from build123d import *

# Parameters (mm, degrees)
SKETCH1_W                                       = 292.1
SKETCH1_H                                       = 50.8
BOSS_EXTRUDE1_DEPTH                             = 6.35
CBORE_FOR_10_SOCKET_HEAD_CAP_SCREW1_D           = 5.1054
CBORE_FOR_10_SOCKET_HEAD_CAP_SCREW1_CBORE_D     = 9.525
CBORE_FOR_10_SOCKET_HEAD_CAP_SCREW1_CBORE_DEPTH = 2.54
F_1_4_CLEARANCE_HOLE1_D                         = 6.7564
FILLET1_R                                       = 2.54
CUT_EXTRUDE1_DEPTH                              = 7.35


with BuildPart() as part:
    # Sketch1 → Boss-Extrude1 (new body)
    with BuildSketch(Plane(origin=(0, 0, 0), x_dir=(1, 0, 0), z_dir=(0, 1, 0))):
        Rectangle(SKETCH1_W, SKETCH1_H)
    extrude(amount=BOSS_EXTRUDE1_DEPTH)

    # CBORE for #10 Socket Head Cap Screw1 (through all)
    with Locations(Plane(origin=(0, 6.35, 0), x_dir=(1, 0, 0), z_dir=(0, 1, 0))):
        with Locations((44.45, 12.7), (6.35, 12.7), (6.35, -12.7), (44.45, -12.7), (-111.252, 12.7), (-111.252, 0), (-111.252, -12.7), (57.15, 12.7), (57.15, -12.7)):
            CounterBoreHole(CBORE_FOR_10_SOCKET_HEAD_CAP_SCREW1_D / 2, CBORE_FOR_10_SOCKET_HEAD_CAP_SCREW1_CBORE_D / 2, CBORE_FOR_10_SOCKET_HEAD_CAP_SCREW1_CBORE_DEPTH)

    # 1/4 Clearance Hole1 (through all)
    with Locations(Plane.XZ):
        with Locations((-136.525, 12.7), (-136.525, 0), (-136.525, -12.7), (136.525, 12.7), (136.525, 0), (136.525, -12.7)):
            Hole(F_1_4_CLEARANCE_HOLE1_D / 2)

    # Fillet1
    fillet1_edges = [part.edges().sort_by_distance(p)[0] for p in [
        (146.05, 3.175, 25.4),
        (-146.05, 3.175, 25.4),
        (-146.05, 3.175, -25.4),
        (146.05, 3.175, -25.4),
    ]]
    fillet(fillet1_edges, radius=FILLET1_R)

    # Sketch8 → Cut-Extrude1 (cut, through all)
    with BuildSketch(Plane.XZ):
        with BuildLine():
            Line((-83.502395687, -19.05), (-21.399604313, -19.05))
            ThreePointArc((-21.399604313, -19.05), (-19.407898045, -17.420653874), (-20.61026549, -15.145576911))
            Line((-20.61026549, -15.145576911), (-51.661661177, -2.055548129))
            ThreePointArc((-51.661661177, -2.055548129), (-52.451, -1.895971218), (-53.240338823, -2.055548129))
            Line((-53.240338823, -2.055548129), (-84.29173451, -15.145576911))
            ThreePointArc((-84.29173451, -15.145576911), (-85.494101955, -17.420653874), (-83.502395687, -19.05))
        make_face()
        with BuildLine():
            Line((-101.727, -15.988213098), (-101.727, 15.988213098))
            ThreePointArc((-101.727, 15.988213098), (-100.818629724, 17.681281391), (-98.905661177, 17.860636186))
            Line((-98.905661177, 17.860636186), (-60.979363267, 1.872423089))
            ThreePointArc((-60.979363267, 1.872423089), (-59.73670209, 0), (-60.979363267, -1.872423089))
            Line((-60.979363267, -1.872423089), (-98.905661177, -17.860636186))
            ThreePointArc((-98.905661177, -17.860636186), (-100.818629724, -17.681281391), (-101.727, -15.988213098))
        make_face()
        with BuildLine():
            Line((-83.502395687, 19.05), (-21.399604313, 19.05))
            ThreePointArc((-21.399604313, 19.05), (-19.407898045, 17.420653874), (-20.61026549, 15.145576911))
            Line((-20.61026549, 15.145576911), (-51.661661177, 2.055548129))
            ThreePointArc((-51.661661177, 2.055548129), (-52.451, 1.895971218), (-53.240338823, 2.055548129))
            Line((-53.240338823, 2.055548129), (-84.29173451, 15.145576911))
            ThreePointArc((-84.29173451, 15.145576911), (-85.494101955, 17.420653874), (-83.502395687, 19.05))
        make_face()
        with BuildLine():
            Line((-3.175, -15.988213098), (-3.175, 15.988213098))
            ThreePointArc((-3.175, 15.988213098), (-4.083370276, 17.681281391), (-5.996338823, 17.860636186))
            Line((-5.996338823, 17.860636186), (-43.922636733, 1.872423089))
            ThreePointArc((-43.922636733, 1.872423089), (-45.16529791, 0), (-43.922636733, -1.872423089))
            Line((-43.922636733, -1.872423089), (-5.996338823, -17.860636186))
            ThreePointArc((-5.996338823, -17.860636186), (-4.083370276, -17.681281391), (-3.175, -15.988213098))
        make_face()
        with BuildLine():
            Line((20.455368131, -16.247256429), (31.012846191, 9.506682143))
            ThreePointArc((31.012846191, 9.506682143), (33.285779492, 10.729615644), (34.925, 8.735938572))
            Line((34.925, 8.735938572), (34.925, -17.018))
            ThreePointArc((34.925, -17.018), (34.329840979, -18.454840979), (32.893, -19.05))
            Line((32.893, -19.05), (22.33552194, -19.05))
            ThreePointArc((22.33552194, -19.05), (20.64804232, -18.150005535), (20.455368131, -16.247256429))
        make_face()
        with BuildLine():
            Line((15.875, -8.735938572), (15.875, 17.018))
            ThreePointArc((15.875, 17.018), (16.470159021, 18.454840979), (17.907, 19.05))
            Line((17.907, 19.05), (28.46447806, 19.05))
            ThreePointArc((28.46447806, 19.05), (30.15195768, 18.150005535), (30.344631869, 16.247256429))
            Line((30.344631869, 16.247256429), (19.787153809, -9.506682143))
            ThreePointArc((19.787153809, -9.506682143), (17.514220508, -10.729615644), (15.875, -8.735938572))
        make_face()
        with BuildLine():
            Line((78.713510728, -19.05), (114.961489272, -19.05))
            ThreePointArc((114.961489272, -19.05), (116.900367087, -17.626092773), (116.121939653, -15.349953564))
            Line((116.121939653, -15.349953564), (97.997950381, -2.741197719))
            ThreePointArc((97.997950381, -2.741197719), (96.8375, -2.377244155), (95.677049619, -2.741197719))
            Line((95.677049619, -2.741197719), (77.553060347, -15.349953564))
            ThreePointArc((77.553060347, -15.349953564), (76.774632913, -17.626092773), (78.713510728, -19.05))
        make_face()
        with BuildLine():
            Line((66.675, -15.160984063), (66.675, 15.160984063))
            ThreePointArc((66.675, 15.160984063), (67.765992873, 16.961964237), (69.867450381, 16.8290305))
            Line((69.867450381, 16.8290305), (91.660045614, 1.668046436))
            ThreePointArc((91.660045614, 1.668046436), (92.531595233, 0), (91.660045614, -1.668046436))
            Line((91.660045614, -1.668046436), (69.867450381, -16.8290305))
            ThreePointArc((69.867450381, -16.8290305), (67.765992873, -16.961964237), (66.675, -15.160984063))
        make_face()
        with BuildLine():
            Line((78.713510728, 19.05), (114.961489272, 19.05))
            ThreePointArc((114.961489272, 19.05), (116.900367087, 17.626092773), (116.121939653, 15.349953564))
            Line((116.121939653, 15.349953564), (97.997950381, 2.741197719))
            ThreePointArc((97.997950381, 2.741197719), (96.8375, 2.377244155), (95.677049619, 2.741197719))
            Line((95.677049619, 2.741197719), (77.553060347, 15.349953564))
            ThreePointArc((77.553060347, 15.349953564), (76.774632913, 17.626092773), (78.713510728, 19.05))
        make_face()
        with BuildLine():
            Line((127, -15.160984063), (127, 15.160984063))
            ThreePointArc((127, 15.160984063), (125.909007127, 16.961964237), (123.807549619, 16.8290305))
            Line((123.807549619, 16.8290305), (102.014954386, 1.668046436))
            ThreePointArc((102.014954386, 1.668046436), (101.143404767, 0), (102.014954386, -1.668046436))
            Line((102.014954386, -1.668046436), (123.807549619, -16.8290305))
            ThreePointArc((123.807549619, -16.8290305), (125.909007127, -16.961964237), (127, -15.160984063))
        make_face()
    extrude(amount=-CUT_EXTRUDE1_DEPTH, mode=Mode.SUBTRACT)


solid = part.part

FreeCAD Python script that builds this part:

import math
import FreeCAD as App
import Part
import Sketcher
from FreeCAD import Vector
Q = App.Units.Quantity


def edges_at(feature, points):
    """Names of the edges that pass closest to the given points."""
    edges = feature.Shape.Edges
    near = lambda p: min(range(len(edges)), key=lambda i: edges[i].distToShape(Part.Vertex(*p))[0])
    return sorted({f"Edge{near(p) + 1}" for p in points})

doc = App.newDocument("Part")
body = doc.addObject("PartDesign::Body", "Body")

sketch1 = doc.addObject("Sketcher::SketchObject", "Sketch")
body.addObject(sketch1)
sketch1.AttachmentSupport = (doc.XZ_Plane, [""])
sketch1.MapMode = "FlatFace"
sketch1.addGeometry([
    Part.LineSegment(Vector(-146, -25, 0), Vector(-146, 25, 0)),
    Part.LineSegment(Vector(-146, 25, 0), Vector(146, 25, 0)),
    Part.LineSegment(Vector(146, 25, 0), Vector(146, -25, 0)),
    Part.LineSegment(Vector(146, -25, 0), Vector(-146, -25, 0)),
], False)
sketch1.addConstraint([
    Sketcher.Constraint("Coincident", 0, 2, 1, 1),
    Sketcher.Constraint("Coincident", 1, 2, 2, 1),
    Sketcher.Constraint("Coincident", 2, 2, 3, 1),
    Sketcher.Constraint("Coincident", 3, 2, 0, 1),
    Sketcher.Constraint("Vertical", 0),
    Sketcher.Constraint("Horizontal", 1),
    Sketcher.Constraint("Vertical", 2),
    Sketcher.Constraint("Horizontal", 3),
    Sketcher.Constraint("Symmetric", 0, 2, 2, 2, -1, 1),
    Sketcher.Constraint("DistanceY", 0, 1, 0, 2, Q("2 in")),
    Sketcher.Constraint("DistanceX", 1, 1, 1, 2, Q("11.5 in")),
])
pad1 = doc.addObject("PartDesign::Pad", "Pad")
body.addObject(pad1)
pad1.Profile = sketch1
pad1.Length = Q("0.25 in")
pad1.Reversed = True

sketch2 = doc.addObject("Sketcher::SketchObject", "Sketch001")
body.addObject(sketch2)
sketch2.AttachmentSupport = (doc.XZ_Plane, [""])
sketch2.MapMode = "FlatFace"
sketch2.AttachmentOffset = App.Placement(Vector(0, 0, -0.25 * 25.4), App.Rotation())
sketch2.addGeometry([
    Part.Circle(Vector(44.5, -12.7, 0), Vector(0, 0, 1), 2.6),
    Part.Circle(Vector(6.3, -12.7, 0), Vector(0, 0, 1), 2.6),
    Part.Circle(Vector(6.3, 12.7, 0), Vector(0, 0, 1), 2.6),
    Part.Circle(Vector(44.5, 12.7, 0), Vector(0, 0, 1), 2.6),
    Part.Circle(Vector(-111.3, -12.7, 0), Vector(0, 0, 1), 2.6),
    Part.Circle(Vector(-111.3, 0, 0), Vector(0, 0, 1), 2.6),
    Part.Circle(Vector(-111.3, 12.7, 0), Vector(0, 0, 1), 2.6),
    Part.Circle(Vector(57.1, -12.7, 0), Vector(0, 0, 1), 2.6),
    Part.Circle(Vector(57.1, 12.7, 0), Vector(0, 0, 1), 2.6),
], False)
sketch2.addConstraint([
    Sketcher.Constraint("Equal", 0, 1),
    Sketcher.Constraint("Equal", 1, 2),
    Sketcher.Constraint("Equal", 2, 3),
    Sketcher.Constraint("Equal", 3, 4),
    Sketcher.Constraint("Equal", 4, 5),
    Sketcher.Constraint("Equal", 5, 6),
    Sketcher.Constraint("Equal", 6, 7),
    Sketcher.Constraint("Equal", 7, 8),
    Sketcher.Constraint("Symmetric", 1, 3, 2, 3, -1),
    Sketcher.Constraint("Symmetric", 0, 3, 3, 3, -1),
    Sketcher.Constraint("Symmetric", 4, 3, 6, 3, -1),
    Sketcher.Constraint("Symmetric", 7, 3, 8, 3, -1),
    Sketcher.Constraint("PointOnObject", 5, 3, -1),
    Sketcher.Constraint("Horizontal", 0, 3, 1, 3),
    Sketcher.Constraint("Horizontal", 1, 3, 4, 3),
    Sketcher.Constraint("Horizontal", 4, 3, 7, 3),
    Sketcher.Constraint("Vertical", 4, 3, 5, 3),
    Sketcher.Constraint("Diameter", 0, Q("0.201 in")),
    Sketcher.Constraint("DistanceY", 1, 3, 2, 3, Q("1 in")),
    Sketcher.Constraint("DistanceX", 1, 3, 7, 3, Q("2 in")),
    Sketcher.Constraint("DistanceX", 1, 3, 0, 3, Q("1.5 in")),
    Sketcher.Constraint("DistanceX", -1, 1, 0, 3, Q("1.75 in")),
    Sketcher.Constraint("DistanceX", 4, 3, -1, 1, Q("4.38 in")),
])
doc.recompute()
hole = doc.addObject("PartDesign::Hole", "Hole")
body.addObject(hole)
hole.Profile = sketch2
hole.ThreadType = "None"
hole.Diameter = Q("0.201 in")
hole.DepthType = "ThroughAll"
hole.HoleCutType = "Counterbore"
hole.HoleCutDiameter = Q("0.375 in")
hole.HoleCutDepth = Q("0.1 in")
hole.Reversed = True

sketch3 = doc.addObject("Sketcher::SketchObject", "Sketch002")
body.addObject(sketch3)
sketch3.AttachmentSupport = (doc.XZ_Plane, [""])
sketch3.MapMode = "FlatFace"
sketch3.addGeometry([
    Part.Circle(Vector(-136.5, 12.7, 0), Vector(0, 0, 1), 3.4),
    Part.Circle(Vector(-136.5, 0, 0), Vector(0, 0, 1), 3.4),
    Part.Circle(Vector(-136.5, -12.7, 0), Vector(0, 0, 1), 3.4),
    Part.Circle(Vector(136.5, 12.7, 0), Vector(0, 0, 1), 3.4),
    Part.Circle(Vector(136.5, 0, 0), Vector(0, 0, 1), 3.4),
    Part.Circle(Vector(136.5, -12.7, 0), Vector(0, 0, 1), 3.4),
], False)
sketch3.addConstraint([
    Sketcher.Constraint("Equal", 0, 1),
    Sketcher.Constraint("Equal", 1, 2),
    Sketcher.Constraint("Equal", 2, 3),
    Sketcher.Constraint("Equal", 3, 4),
    Sketcher.Constraint("Equal", 4, 5),
    Sketcher.Constraint("Symmetric", 2, 3, 3, 3, -1, 1),
    Sketcher.Constraint("Symmetric", 1, 3, 4, 3, -1, 1),
    Sketcher.Constraint("Symmetric", 0, 3, 5, 3, -1, 1),
    Sketcher.Constraint("Symmetric", 0, 3, 3, 3, -2),
    Sketcher.Constraint("PointOnObject", 1, 3, -1),
    Sketcher.Constraint("Vertical", 0, 3, 1, 3),
    Sketcher.Constraint("Diameter", 0, Q("0.266 in")),
    Sketcher.Constraint("DistanceY", 2, 3, 0, 3, Q("1 in")),
    Sketcher.Constraint("DistanceX", 0, 3, 3, 3, Q("10.75 in")),
])
doc.recompute()
hole2 = doc.addObject("PartDesign::Hole", "Hole001")
body.addObject(hole2)
hole2.Profile = sketch3
hole2.ThreadType = "None"
hole2.Diameter = Q("0.266 in")
hole2.DepthType = "ThroughAll"
doc.recompute()

fillet = doc.addObject("PartDesign::Fillet", "Fillet")
body.addObject(fillet)
fillet.Base = (hole2, edges_at(hole2, [
    (146.05, 3.175, 25.4),
    (-146.05, 3.175, 25.4),
    (-146.05, 3.175, -25.4),
    (146.05, 3.175, -25.4),
]))
fillet.Radius = Q("0.1 in")

sketch4 = doc.addObject("Sketcher::SketchObject", "Sketch003")
body.addObject(sketch4)
sketch4.AttachmentSupport = (doc.XZ_Plane, [""])
sketch4.MapMode = "FlatFace"
sketch4.addGeometry([
    Part.LineSegment(Vector(-83.5, -19.1, 0), Vector(-21.4, -19.1, 0)),
    Part.ArcOfCircle(Part.Circle(Vector(-21.4, -17, 0), Vector(0, 0, 1), 2), math.radians(-90), math.radians(67)),
    Part.LineSegment(Vector(-20.6, -15.1, 0), Vector(-51.7, -2.1, 0)),
    Part.ArcOfCircle(Part.Circle(Vector(-52.5, -3.9, 0), Vector(0, 0, 1), 2), math.radians(67), math.radians(113)),
    Part.LineSegment(Vector(-53.2, -2.1, 0), Vector(-84.3, -15.1, 0)),
    Part.ArcOfCircle(Part.Circle(Vector(-83.5, -17, 0), Vector(0, 0, 1), 2), math.radians(113), math.radians(270)),
    Part.LineSegment(Vector(-101.7, 16, 0), Vector(-101.7, -16, 0)),
    Part.ArcOfCircle(Part.Circle(Vector(-99.7, -16, 0), Vector(0, 0, 1), 2), math.radians(180), math.radians(293)),
    Part.LineSegment(Vector(-98.9, -17.9, 0), Vector(-61, -1.9, 0)),
    Part.ArcOfCircle(Part.Circle(Vector(-61.8, 0, 0), Vector(0, 0, 1), 2), math.radians(-67), math.radians(67)),
    Part.LineSegment(Vector(-61, 1.9, 0), Vector(-98.9, 17.9, 0)),
    Part.ArcOfCircle(Part.Circle(Vector(-99.7, 16, 0), Vector(0, 0, 1), 2), math.radians(67), math.radians(180)),
    Part.LineSegment(Vector(-21.4, 19.1, 0), Vector(-83.5, 19.1, 0)),
    Part.ArcOfCircle(Part.Circle(Vector(-83.5, 17, 0), Vector(0, 0, 1), 2), math.radians(90), math.radians(247)),
    Part.LineSegment(Vector(-84.3, 15.1, 0), Vector(-53.2, 2.1, 0)),
    Part.ArcOfCircle(Part.Circle(Vector(-52.5, 3.9, 0), Vector(0, 0, 1), 2), math.radians(-113), math.radians(-67)),
    Part.LineSegment(Vector(-51.7, 2.1, 0), Vector(-20.6, 15.1, 0)),
    Part.ArcOfCircle(Part.Circle(Vector(-21.4, 17, 0), Vector(0, 0, 1), 2), math.radians(-67), math.radians(90)),
    Part.LineSegment(Vector(-3.2, -16, 0), Vector(-3.2, 16, 0)),
    Part.ArcOfCircle(Part.Circle(Vector(-5.2, 16, 0), Vector(0, 0, 1), 2), math.radians(0), math.radians(113)),
    Part.LineSegment(Vector(-6, 17.9, 0), Vector(-43.9, 1.9, 0)),
    Part.ArcOfCircle(Part.Circle(Vector(-43.1, 0, 0), Vector(0, 0, 1), 2), math.radians(113), math.radians(247)),
    Part.LineSegment(Vector(-43.9, -1.9, 0), Vector(-6, -17.9, 0)),
    Part.ArcOfCircle(Part.Circle(Vector(-5.2, -16, 0), Vector(0, 0, 1), 2), math.radians(-113), math.radians(0)),
    Part.LineSegment(Vector(31, 9.5, 0), Vector(20.5, -16.2, 0)),
    Part.ArcOfCircle(Part.Circle(Vector(22.3, -17, 0), Vector(0, 0, 1), 2), math.radians(158), math.radians(270)),
    Part.LineSegment(Vector(22.3, -19.1, 0), Vector(32.9, -19.1, 0)),
    Part.ArcOfCircle(Part.Circle(Vector(32.9, -17, 0), Vector(0, 0, 1), 2), math.radians(-90), math.radians(0)),
    Part.LineSegment(Vector(34.9, -17, 0), Vector(34.9, 8.7, 0)),
    Part.ArcOfCircle(Part.Circle(Vector(32.9, 8.7, 0), Vector(0, 0, 1), 2), math.radians(0), math.radians(158)),
    Part.LineSegment(Vector(15.9, 17, 0), Vector(15.9, -8.7, 0)),
    Part.ArcOfCircle(Part.Circle(Vector(17.9, -8.7, 0), Vector(0, 0, 1), 2), math.radians(-180), math.radians(-22)),
    Part.LineSegment(Vector(19.8, -9.5, 0), Vector(30.3, 16.2, 0)),
    Part.ArcOfCircle(Part.Circle(Vector(28.5, 17, 0), Vector(0, 0, 1), 2), math.radians(-22), math.radians(90)),
    Part.LineSegment(Vector(28.5, 19.1, 0), Vector(17.9, 19.1, 0)),
    Part.ArcOfCircle(Part.Circle(Vector(17.9, 17, 0), Vector(0, 0, 1), 2), math.radians(90), math.radians(180)),
    Part.LineSegment(Vector(78.7, -19.1, 0), Vector(115, -19.1, 0)),
    Part.ArcOfCircle(Part.Circle(Vector(115, -17, 0), Vector(0, 0, 1), 2), math.radians(-90), math.radians(55)),
    Part.LineSegment(Vector(116.1, -15.3, 0), Vector(98, -2.7, 0)),
    Part.ArcOfCircle(Part.Circle(Vector(96.8, -4.4, 0), Vector(0, 0, 1), 2), math.radians(55), math.radians(125)),
    Part.LineSegment(Vector(95.7, -2.7, 0), Vector(77.6, -15.3, 0)),
    Part.ArcOfCircle(Part.Circle(Vector(78.7, -17, 0), Vector(0, 0, 1), 2), math.radians(125), math.radians(270)),
    Part.LineSegment(Vector(66.7, 15.2, 0), Vector(66.7, -15.2, 0)),
    Part.ArcOfCircle(Part.Circle(Vector(68.7, -15.2, 0), Vector(0, 0, 1), 2), math.radians(180), math.radians(305)),
    Part.LineSegment(Vector(69.9, -16.8, 0), Vector(91.7, -1.7, 0)),
    Part.ArcOfCircle(Part.Circle(Vector(90.5, 0, 0), Vector(0, 0, 1), 2), math.radians(-55), math.radians(55)),
    Part.LineSegment(Vector(91.7, 1.7, 0), Vector(69.9, 16.8, 0)),
    Part.ArcOfCircle(Part.Circle(Vector(68.7, 15.2, 0), Vector(0, 0, 1), 2), math.radians(55), math.radians(180)),
    Part.LineSegment(Vector(115, 19.1, 0), Vector(78.7, 19.1, 0)),
    Part.ArcOfCircle(Part.Circle(Vector(78.7, 17, 0), Vector(0, 0, 1), 2), math.radians(90), math.radians(235)),
    Part.LineSegment(Vector(77.6, 15.3, 0), Vector(95.7, 2.7, 0)),
    Part.ArcOfCircle(Part.Circle(Vector(96.8, 4.4, 0), Vector(0, 0, 1), 2), math.radians(-125), math.radians(-55)),
    Part.LineSegment(Vector(98, 2.7, 0), Vector(116.1, 15.3, 0)),
    Part.ArcOfCircle(Part.Circle(Vector(115, 17, 0), Vector(0, 0, 1), 2), math.radians(-55), math.radians(90)),
    Part.LineSegment(Vector(127, -15.2, 0), Vector(127, 15.2, 0)),
    Part.ArcOfCircle(Part.Circle(Vector(125, 15.2, 0), Vector(0, 0, 1), 2), math.radians(0), math.radians(125)),
    Part.LineSegment(Vector(123.8, 16.8, 0), Vector(102, 1.7, 0)),
    Part.ArcOfCircle(Part.Circle(Vector(103.2, 0, 0), Vector(0, 0, 1), 2), math.radians(125), math.radians(235)),
    Part.LineSegment(Vector(102, -1.7, 0), Vector(123.8, -16.8, 0)),
    Part.ArcOfCircle(Part.Circle(Vector(125, -15.2, 0), Vector(0, 0, 1), 2), math.radians(-125), math.radians(0)),
], False)
sketch4.addConstraint([
    Sketcher.Constraint("Tangent", 0, 2, 1, 1),
    Sketcher.Constraint("Tangent", 1, 2, 2, 1),
    Sketcher.Constraint("Tangent", 2, 2, 3, 1),
    Sketcher.Constraint("Tangent", 3, 2, 4, 1),
    Sketcher.Constraint("Tangent", 4, 2, 5, 1),
    Sketcher.Constraint("Tangent", 5, 2, 0, 1),
    Sketcher.Constraint("Tangent", 6, 2, 7, 1),
    Sketcher.Constraint("Tangent", 7, 2, 8, 1),
    Sketcher.Constraint("Tangent", 8, 2, 9, 1),
    Sketcher.Constraint("Tangent", 9, 2, 10, 1),
    Sketcher.Constraint("Tangent", 10, 2, 11, 1),
    Sketcher.Constraint("Tangent", 11, 2, 6, 1),
    Sketcher.Constraint("Tangent", 12, 2, 13, 1),
    Sketcher.Constraint("Tangent", 13, 2, 14, 1),
    Sketcher.Constraint("Tangent", 14, 2, 15, 1),
    Sketcher.Constraint("Tangent", 15, 2, 16, 1),
    Sketcher.Constraint("Tangent", 16, 2, 17, 1),
    Sketcher.Constraint("Tangent", 17, 2, 12, 1),
    Sketcher.Constraint("Tangent", 18, 2, 19, 1),
    Sketcher.Constraint("Tangent", 19, 2, 20, 1),
    Sketcher.Constraint("Tangent", 20, 2, 21, 1),
    Sketcher.Constraint("Tangent", 21, 2, 22, 1),
    Sketcher.Constraint("Tangent", 22, 2, 23, 1),
    Sketcher.Constraint("Tangent", 23, 2, 18, 1),
    Sketcher.Constraint("Tangent", 24, 2, 25, 1),
    Sketcher.Constraint("Tangent", 25, 2, 26, 1),
    Sketcher.Constraint("Tangent", 26, 2, 27, 1),
    Sketcher.Constraint("Tangent", 27, 2, 28, 1),
    Sketcher.Constraint("Tangent", 28, 2, 29, 1),
    Sketcher.Constraint("Tangent", 29, 2, 24, 1),
    Sketcher.Constraint("Tangent", 30, 2, 31, 1),
    Sketcher.Constraint("Tangent", 31, 2, 32, 1),
    Sketcher.Constraint("Tangent", 32, 2, 33, 1),
    Sketcher.Constraint("Tangent", 33, 2, 34, 1),
    Sketcher.Constraint("Tangent", 34, 2, 35, 1),
    Sketcher.Constraint("Tangent", 35, 2, 30, 1),
    Sketcher.Constraint("Tangent", 36, 2, 37, 1),
    Sketcher.Constraint("Tangent", 37, 2, 38, 1),
    Sketcher.Constraint("Tangent", 38, 2, 39, 1),
    Sketcher.Constraint("Tangent", 39, 2, 40, 1),
    Sketcher.Constraint("Tangent", 40, 2, 41, 1),
    Sketcher.Constraint("Tangent", 41, 2, 36, 1),
    Sketcher.Constraint("Tangent", 42, 2, 43, 1),
    Sketcher.Constraint("Tangent", 43, 2, 44, 1),
    Sketcher.Constraint("Tangent", 44, 2, 45, 1),
    Sketcher.Constraint("Tangent", 45, 2, 46, 1),
    Sketcher.Constraint("Tangent", 46, 2, 47, 1),
    Sketcher.Constraint("Tangent", 47, 2, 42, 1),
    Sketcher.Constraint("Tangent", 48, 2, 49, 1),
    Sketcher.Constraint("Tangent", 49, 2, 50, 1),
    Sketcher.Constraint("Tangent", 50, 2, 51, 1),
    Sketcher.Constraint("Tangent", 51, 2, 52, 1),
    Sketcher.Constraint("Tangent", 52, 2, 53, 1),
    Sketcher.Constraint("Tangent", 53, 2, 48, 1),
    Sketcher.Constraint("Tangent", 54, 2, 55, 1),
    Sketcher.Constraint("Tangent", 55, 2, 56, 1),
    Sketcher.Constraint("Tangent", 56, 2, 57, 1),
    Sketcher.Constraint("Tangent", 57, 2, 58, 1),
    Sketcher.Constraint("Tangent", 58, 2, 59, 1),
    Sketcher.Constraint("Tangent", 59, 2, 54, 1),
    Sketcher.Constraint("Horizontal", 0),
    Sketcher.Constraint("Vertical", 6),
    Sketcher.Constraint("Horizontal", 12),
    Sketcher.Constraint("Vertical", 18),
    Sketcher.Constraint("Horizontal", 26),
    Sketcher.Constraint("Vertical", 28),
    Sketcher.Constraint("Vertical", 30),
    Sketcher.Constraint("Horizontal", 34),
    Sketcher.Constraint("Horizontal", 36),
    Sketcher.Constraint("Vertical", 42),
    Sketcher.Constraint("Horizontal", 48),
    Sketcher.Constraint("Vertical", 54),
    Sketcher.Constraint("Equal", 1, 3),
    Sketcher.Constraint("Equal", 3, 5),
    Sketcher.Constraint("Equal", 5, 7),
    Sketcher.Constraint("Equal", 7, 9),
    Sketcher.Constraint("Equal", 9, 11),
    Sketcher.Constraint("Equal", 11, 13),
    Sketcher.Constraint("Equal", 13, 15),
    Sketcher.Constraint("Equal", 15, 17),
    Sketcher.Constraint("Equal", 17, 19),
    Sketcher.Constraint("Equal", 19, 21),
    Sketcher.Constraint("Equal", 21, 23),
    Sketcher.Constraint("Equal", 23, 25),
    Sketcher.Constraint("Equal", 25, 27),
    Sketcher.Constraint("Equal", 27, 29),
    Sketcher.Constraint("Equal", 29, 31),
    Sketcher.Constraint("Equal", 31, 33),
    Sketcher.Constraint("Equal", 33, 35),
    Sketcher.Constraint("Equal", 35, 37),
    Sketcher.Constraint("Equal", 37, 39),
    Sketcher.Constraint("Equal", 39, 41),
    Sketcher.Constraint("Equal", 41, 43),
    Sketcher.Constraint("Equal", 43, 45),
    Sketcher.Constraint("Equal", 45, 47),
    Sketcher.Constraint("Equal", 47, 49),
    Sketcher.Constraint("Equal", 49, 51),
    Sketcher.Constraint("Equal", 51, 53),
    Sketcher.Constraint("Equal", 53, 55),
    Sketcher.Constraint("Equal", 55, 57),
    Sketcher.Constraint("Equal", 57, 59),
    Sketcher.Constraint("Symmetric", 5, 3, 13, 3, -1),
    Sketcher.Constraint("Symmetric", 3, 3, 15, 3, -1),
    Sketcher.Constraint("Symmetric", 41, 3, 49, 3, -1),
    Sketcher.Constraint("Symmetric", 39, 3, 51, 3, -1),
    Sketcher.Constraint("Symmetric", 8, 2, 9, 2, -1),
    Sketcher.Constraint("Symmetric", 20, 2, 21, 2, -1),
    Sketcher.Constraint("Symmetric", 44, 2, 45, 2, -1),
    Sketcher.Constraint("Symmetric", 56, 2, 57, 2, -1),
    Sketcher.Constraint("Parallel", 4, 8),
    Sketcher.Constraint("Parallel", 2, 10),
    Sketcher.Constraint("Parallel", 8, 16),
    Sketcher.Constraint("Parallel", 16, 20),
    Sketcher.Constraint("Parallel", 24, 32),
    Sketcher.Constraint("Parallel", 40, 44),
    Sketcher.Constraint("Parallel", 38, 46),
    Sketcher.Constraint("Parallel", 44, 52),
    Sketcher.Constraint("Parallel", 52, 56),
    Sketcher.Constraint("Horizontal", 11, 3, 19, 3),
    Sketcher.Constraint("Horizontal", 5, 3, 25, 3),
    Sketcher.Constraint("Horizontal", 17, 3, 33, 3),
    Sketcher.Constraint("Horizontal", 27, 3, 37, 3),
    Sketcher.Constraint("Horizontal", 47, 3, 55, 3),
    Sketcher.Constraint("Equal", 26, 34),
    Sketcher.Constraint("Radius", 1, Q("0.08 in")),
    Sketcher.Constraint("DistanceX", -1, 1, 54, 2, Q("5 in")),
    Sketcher.Constraint("DistanceY", 1, 3, -1, 1, Q("0.67 in")),
    Sketcher.Constraint("DistanceX", 3, 3, -1, 1, Q("2.065 in")),
    Sketcher.Constraint("DistanceX", 7, 3, -1, 1, Q("3.925 in")),
    Sketcher.Constraint("DistanceX", 19, 3, -1, 1, Q("0.205 in")),
    Sketcher.Constraint("DistanceX", -1, 1, 27, 3, Q("1.295 in")),
    Sketcher.Constraint("DistanceX", -1, 1, 31, 3, Q("0.705 in")),
    Sketcher.Constraint("DistanceX", -1, 1, 39, 3, Q("3.8125 in")),
    Sketcher.Constraint("DistanceX", -1, 1, 43, 3, Q("2.705 in")),
    Sketcher.Constraint("DistanceX", 0, 1, 0, 2, Q("62.102791 mm")),
    Sketcher.Constraint("DistanceX", 26, 1, 26, 2, Q("10.557478 mm")),
    Sketcher.Constraint("DistanceX", 36, 1, 36, 2, Q("36.247979 mm")),
    Sketcher.Constraint("DistanceY", 28, 1, 28, 2, Q("25.753939 mm")),
    Sketcher.Constraint("DistanceY", 42, 2, 42, 1, Q("30.321968 mm")),
    Sketcher.Constraint("Distance", 8, Q("41.15856 mm")),
    Sketcher.Constraint("Distance", 38, Q("22.07849 mm")),
    Sketcher.Constraint("DistanceY", 6, 2, 6, 1, Q("31.976426 mm")),
])
pocket1 = doc.addObject("PartDesign::Pocket", "Pocket")
body.addObject(pocket1)
pocket1.Profile = sketch4
pocket1.Type = "ThroughAll"

doc.recompute()
